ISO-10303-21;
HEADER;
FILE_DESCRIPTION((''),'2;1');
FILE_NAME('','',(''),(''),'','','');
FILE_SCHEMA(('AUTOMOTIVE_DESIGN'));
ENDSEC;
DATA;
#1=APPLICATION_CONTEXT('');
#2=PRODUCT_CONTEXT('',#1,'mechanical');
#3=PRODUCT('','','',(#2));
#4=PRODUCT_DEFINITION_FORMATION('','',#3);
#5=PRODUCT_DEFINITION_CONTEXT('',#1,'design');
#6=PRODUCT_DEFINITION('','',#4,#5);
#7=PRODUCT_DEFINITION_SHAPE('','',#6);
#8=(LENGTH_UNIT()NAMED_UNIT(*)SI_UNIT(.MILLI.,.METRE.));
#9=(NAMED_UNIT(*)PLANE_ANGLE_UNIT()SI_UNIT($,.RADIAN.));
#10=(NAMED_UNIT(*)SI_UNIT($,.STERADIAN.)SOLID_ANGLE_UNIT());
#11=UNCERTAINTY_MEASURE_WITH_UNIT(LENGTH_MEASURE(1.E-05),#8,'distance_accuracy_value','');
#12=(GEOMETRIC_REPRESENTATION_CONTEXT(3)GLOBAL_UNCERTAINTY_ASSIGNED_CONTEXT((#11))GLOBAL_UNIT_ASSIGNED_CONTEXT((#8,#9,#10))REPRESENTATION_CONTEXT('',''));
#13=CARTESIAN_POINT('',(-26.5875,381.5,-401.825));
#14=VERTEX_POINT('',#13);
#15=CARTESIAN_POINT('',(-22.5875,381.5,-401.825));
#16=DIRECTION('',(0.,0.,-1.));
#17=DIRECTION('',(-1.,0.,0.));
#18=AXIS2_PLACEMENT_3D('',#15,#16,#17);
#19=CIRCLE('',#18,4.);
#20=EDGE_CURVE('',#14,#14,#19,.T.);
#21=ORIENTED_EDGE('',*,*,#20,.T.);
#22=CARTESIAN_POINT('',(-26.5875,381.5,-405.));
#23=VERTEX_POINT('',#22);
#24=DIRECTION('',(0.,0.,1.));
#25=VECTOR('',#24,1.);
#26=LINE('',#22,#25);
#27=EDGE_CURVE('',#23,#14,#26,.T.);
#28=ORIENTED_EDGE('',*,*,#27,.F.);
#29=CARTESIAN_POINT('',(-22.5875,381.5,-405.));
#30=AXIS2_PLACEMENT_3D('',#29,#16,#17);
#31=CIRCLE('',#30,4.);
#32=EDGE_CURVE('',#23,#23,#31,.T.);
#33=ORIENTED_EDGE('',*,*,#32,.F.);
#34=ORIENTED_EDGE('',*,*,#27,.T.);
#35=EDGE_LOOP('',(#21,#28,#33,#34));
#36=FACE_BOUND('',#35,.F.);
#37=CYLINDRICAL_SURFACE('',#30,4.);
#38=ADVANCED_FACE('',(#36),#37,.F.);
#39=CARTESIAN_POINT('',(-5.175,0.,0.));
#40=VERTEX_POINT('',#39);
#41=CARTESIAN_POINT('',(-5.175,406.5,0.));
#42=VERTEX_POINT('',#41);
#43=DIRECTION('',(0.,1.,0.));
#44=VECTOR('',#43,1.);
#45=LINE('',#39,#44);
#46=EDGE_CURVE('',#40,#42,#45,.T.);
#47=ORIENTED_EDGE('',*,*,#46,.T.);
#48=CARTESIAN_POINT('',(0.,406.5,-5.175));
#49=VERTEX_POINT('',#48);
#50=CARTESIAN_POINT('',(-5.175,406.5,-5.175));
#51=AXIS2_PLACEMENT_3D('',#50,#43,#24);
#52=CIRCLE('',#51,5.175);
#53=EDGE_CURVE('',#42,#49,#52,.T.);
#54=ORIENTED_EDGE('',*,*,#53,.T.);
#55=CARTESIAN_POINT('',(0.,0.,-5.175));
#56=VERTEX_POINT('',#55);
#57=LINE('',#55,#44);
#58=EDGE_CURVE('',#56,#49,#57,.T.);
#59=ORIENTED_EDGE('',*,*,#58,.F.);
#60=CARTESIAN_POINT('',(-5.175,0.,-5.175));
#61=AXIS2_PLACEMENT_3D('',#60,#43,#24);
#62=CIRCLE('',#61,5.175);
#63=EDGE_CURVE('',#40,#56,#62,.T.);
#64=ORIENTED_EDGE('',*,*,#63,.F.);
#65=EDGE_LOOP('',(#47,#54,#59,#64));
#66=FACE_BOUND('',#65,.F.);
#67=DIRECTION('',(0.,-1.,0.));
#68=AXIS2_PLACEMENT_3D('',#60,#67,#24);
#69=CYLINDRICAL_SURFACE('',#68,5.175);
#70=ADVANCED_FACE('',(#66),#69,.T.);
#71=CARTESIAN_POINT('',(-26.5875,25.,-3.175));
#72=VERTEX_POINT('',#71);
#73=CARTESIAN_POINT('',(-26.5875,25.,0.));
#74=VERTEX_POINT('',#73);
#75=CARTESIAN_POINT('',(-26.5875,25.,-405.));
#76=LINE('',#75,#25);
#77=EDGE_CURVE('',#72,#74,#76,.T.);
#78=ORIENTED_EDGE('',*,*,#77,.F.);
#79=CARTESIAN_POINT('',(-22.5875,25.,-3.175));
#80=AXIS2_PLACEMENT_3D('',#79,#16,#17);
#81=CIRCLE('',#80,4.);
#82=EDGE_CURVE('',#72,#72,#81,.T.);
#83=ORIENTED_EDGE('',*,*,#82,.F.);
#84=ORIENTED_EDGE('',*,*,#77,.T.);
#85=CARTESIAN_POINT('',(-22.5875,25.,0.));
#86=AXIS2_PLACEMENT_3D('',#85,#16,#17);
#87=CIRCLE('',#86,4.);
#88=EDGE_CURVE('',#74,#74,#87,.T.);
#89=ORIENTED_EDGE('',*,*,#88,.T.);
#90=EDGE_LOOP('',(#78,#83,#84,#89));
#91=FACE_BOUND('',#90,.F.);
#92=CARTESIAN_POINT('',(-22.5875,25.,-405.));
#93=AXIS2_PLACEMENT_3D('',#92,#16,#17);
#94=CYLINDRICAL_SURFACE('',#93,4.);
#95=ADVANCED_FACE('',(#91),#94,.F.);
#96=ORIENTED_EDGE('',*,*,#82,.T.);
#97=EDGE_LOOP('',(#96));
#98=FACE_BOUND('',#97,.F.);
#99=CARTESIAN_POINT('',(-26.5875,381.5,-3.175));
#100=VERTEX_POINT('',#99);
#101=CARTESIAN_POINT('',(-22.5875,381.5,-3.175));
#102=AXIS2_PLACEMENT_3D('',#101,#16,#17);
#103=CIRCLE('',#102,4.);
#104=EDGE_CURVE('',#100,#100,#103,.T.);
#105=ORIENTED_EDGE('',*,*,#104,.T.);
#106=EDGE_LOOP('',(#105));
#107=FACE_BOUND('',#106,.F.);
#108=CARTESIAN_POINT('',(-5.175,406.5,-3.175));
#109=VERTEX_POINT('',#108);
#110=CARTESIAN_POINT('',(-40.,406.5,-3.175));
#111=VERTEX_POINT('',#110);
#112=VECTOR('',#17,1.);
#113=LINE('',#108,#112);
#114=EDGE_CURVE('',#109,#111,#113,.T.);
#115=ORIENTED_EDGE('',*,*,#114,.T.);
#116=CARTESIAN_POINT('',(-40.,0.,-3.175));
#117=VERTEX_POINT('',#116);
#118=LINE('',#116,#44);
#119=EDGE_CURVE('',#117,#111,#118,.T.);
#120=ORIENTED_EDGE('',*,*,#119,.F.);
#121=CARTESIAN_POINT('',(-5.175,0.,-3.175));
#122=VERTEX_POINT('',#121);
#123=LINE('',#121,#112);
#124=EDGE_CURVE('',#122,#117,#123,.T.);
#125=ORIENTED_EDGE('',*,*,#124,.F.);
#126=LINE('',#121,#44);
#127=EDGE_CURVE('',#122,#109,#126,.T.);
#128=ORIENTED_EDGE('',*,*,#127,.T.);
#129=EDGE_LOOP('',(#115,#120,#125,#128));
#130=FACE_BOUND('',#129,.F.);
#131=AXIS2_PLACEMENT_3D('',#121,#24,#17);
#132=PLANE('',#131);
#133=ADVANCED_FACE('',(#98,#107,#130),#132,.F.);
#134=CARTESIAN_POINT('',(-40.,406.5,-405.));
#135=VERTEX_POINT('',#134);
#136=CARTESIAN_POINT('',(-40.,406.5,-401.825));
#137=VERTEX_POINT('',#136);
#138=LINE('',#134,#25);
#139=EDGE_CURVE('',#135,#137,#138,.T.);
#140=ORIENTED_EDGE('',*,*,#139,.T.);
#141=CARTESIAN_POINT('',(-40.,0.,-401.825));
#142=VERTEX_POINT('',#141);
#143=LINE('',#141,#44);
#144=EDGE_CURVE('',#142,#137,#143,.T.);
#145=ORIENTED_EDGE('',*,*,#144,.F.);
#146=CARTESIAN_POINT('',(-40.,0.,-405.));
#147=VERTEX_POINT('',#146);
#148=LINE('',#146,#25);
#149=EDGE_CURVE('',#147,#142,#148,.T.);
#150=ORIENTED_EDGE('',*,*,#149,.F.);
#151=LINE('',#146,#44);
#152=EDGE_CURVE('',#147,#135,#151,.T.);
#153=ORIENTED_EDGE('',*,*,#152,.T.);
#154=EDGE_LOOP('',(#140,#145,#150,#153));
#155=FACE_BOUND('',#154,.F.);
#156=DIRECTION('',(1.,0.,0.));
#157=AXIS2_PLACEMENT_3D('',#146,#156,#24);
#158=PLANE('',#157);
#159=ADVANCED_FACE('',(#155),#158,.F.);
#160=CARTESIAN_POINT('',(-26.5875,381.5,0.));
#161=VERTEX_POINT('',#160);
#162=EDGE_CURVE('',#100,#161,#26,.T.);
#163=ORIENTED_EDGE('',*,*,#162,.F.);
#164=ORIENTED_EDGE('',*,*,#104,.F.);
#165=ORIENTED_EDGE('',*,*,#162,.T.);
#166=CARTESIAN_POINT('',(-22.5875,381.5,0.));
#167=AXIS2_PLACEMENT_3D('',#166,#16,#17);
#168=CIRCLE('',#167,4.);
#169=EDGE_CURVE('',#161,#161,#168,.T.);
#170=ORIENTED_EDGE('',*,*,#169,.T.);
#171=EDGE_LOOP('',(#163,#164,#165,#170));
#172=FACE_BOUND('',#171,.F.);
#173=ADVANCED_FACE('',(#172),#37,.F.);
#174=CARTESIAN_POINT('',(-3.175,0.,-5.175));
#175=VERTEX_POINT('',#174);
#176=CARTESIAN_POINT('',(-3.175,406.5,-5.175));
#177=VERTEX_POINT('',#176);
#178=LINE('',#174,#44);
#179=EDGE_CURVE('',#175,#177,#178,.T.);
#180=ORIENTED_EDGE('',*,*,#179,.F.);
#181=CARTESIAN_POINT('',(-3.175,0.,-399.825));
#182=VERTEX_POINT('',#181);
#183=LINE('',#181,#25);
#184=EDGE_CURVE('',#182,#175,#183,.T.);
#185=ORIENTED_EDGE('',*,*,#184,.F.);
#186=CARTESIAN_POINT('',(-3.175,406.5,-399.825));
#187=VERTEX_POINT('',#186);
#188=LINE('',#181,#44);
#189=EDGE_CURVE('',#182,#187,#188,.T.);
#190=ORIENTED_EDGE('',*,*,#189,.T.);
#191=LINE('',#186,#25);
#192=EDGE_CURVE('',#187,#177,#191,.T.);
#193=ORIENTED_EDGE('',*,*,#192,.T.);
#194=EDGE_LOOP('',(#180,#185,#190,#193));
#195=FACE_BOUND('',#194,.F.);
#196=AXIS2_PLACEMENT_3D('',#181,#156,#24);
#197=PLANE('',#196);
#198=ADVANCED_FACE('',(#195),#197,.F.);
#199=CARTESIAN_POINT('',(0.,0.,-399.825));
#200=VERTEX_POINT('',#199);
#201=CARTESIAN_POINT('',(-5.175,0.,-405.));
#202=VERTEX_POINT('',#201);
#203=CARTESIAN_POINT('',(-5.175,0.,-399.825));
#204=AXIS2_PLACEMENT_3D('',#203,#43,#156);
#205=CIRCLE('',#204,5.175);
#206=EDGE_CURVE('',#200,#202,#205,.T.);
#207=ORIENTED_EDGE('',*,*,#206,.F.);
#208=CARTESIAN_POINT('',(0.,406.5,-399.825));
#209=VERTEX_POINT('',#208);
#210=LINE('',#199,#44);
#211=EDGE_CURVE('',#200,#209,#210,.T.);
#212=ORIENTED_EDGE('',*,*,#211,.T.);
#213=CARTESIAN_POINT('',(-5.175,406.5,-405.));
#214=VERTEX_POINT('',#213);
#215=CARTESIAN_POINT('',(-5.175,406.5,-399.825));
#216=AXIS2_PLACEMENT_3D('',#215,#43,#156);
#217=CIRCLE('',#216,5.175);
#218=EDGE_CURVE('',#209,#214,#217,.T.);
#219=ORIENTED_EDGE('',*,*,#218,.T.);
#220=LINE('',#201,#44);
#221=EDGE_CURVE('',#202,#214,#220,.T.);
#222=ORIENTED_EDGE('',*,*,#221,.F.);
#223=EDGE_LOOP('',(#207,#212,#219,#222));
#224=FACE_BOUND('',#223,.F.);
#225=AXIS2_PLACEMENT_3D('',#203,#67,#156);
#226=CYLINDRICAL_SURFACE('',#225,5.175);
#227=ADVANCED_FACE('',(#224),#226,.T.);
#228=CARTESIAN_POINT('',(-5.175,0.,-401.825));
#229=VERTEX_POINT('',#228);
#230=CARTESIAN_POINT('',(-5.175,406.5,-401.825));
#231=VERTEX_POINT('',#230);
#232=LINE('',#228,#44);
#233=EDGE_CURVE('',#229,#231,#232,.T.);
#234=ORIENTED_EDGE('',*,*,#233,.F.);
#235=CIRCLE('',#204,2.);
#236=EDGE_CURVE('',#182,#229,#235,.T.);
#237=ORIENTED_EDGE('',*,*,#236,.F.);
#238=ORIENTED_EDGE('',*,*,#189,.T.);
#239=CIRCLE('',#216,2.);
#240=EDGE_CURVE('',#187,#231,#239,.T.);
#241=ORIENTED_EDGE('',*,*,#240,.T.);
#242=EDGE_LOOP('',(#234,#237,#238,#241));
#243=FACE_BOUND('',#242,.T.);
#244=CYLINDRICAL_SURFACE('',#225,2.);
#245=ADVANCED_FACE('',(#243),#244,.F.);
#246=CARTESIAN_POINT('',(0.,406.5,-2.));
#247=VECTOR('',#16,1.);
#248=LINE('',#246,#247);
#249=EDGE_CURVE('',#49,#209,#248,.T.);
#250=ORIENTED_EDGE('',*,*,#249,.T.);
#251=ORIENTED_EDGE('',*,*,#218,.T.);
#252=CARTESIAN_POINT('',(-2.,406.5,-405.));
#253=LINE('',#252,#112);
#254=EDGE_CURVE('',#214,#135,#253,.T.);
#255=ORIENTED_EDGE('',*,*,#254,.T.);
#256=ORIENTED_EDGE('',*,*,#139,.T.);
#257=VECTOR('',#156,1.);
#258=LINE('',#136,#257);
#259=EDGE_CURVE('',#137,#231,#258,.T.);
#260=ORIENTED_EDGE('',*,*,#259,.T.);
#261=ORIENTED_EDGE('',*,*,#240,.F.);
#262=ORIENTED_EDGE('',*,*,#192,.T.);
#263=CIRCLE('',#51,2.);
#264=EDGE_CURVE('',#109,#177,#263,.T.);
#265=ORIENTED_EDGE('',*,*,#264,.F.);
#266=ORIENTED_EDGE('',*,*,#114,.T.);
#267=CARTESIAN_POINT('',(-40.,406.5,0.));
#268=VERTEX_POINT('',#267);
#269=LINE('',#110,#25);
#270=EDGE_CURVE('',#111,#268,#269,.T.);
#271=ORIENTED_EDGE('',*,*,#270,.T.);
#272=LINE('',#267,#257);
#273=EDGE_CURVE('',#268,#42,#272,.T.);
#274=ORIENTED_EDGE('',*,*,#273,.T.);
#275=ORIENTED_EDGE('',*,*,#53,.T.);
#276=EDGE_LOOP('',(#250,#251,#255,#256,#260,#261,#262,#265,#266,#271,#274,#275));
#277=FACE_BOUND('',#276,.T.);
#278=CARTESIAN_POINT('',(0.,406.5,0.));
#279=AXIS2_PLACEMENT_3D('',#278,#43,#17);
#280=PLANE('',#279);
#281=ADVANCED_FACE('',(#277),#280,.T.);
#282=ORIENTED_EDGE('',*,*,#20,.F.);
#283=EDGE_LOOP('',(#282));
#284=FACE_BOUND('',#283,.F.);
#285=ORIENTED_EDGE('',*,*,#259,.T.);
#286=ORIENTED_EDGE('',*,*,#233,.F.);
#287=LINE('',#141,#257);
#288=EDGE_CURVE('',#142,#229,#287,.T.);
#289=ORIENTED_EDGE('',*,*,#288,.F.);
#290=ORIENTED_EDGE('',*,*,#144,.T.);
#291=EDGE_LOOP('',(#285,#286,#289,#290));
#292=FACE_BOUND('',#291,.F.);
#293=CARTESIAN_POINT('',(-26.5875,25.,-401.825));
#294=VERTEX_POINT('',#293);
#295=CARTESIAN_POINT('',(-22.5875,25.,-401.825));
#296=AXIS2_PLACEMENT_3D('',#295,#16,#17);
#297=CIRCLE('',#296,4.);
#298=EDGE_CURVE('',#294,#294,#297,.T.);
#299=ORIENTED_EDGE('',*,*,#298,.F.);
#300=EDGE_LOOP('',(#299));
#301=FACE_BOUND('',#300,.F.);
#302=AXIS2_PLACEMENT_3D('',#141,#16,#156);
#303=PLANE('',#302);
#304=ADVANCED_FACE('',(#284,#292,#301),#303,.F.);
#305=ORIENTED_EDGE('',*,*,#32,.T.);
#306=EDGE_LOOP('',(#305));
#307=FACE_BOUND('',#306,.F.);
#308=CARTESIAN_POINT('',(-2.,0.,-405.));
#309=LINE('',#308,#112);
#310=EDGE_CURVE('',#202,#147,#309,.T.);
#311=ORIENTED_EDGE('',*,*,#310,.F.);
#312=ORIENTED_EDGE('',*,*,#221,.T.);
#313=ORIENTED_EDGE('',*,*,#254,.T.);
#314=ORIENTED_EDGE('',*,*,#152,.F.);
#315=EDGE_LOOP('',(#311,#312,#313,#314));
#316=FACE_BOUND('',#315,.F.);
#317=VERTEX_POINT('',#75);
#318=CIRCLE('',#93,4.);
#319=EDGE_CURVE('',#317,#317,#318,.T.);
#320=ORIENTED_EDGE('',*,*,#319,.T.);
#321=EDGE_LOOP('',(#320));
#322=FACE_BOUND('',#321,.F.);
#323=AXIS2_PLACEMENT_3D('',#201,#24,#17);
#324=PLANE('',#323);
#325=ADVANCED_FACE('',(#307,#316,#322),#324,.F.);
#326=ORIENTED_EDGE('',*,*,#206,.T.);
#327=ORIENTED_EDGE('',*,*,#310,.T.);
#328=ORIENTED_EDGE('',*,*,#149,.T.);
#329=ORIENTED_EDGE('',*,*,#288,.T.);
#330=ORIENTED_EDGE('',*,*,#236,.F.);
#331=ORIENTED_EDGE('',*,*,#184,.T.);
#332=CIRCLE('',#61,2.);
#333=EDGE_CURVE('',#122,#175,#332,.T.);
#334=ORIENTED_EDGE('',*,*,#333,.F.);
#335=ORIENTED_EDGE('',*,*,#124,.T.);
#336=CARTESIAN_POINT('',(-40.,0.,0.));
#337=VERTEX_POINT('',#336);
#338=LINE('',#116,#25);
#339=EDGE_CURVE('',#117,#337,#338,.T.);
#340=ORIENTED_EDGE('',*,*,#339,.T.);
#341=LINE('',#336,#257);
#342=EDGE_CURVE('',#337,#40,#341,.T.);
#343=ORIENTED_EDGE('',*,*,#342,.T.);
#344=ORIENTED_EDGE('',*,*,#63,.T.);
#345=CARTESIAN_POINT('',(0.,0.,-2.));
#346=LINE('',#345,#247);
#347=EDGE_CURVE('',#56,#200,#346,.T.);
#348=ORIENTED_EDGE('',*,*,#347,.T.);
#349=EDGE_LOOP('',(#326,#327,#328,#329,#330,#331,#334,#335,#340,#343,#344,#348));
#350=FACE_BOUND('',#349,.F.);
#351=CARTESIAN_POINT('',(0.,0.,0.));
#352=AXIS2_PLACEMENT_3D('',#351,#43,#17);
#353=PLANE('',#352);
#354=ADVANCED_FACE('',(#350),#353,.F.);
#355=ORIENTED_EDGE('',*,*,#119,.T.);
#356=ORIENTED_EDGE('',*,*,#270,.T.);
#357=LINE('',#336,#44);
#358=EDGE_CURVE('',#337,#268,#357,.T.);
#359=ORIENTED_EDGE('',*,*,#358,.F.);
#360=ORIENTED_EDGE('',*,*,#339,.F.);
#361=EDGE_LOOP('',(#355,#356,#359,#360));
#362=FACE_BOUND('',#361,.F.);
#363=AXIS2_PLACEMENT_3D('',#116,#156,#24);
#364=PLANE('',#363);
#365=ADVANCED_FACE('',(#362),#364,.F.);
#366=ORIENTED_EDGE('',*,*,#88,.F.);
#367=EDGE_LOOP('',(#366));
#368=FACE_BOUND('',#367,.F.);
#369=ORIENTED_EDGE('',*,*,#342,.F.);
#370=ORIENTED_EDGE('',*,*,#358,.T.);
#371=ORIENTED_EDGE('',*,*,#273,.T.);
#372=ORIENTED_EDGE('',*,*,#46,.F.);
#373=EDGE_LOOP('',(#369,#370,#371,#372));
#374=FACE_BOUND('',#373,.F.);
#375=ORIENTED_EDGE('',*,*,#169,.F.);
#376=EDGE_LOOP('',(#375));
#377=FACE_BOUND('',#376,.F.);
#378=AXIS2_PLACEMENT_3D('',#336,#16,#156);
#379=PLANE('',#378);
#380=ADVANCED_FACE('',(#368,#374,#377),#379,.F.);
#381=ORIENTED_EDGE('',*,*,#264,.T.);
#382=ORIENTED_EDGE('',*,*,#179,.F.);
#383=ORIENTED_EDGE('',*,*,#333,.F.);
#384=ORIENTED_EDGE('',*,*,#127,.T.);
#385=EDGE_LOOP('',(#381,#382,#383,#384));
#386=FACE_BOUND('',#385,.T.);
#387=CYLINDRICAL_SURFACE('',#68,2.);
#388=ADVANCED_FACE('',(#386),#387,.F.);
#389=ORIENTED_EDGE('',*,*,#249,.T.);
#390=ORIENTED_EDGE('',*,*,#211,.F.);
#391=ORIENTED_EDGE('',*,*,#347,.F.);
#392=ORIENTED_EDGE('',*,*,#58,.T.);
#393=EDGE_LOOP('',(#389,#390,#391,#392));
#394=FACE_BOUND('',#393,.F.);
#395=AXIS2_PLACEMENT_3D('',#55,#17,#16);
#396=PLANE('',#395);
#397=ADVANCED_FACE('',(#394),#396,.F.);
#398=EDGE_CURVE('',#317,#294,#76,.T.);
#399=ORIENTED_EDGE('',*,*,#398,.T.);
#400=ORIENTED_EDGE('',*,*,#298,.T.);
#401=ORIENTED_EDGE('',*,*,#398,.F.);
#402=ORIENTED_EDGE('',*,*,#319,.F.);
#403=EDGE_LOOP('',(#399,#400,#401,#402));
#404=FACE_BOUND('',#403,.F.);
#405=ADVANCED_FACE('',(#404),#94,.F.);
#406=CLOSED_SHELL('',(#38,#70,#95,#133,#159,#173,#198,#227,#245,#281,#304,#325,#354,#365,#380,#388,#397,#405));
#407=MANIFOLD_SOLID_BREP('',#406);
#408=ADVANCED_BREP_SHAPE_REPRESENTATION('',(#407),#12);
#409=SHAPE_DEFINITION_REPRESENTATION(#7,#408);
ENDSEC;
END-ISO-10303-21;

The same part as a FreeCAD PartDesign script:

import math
import FreeCAD as App
import Part
import Sketcher

doc = App.newDocument("Part")
body = doc.addObject("PartDesign::Body", "Body")

sketch1 = body.newObject("Sketcher::SketchObject", "Sketch")
sketch1.AttachmentSupport = (doc.getObject("XZ_Plane"), [""])
sketch1.MapMode = "FlatFace"
sketch1.addGeometry(Part.ArcOfCircle(Part.Circle(App.Vector(-5.175, -5.175, 0), App.Vector(0, 0, 1), 5.175), math.radians(0), math.radians(90)), False)
sketch1.addGeometry(Part.LineSegment(App.Vector(0, -5.175, 0), App.Vector(0, -399.825, 0)), False)
sketch1.addGeometry(Part.ArcOfCircle(Part.Circle(App.Vector(-5.175, -399.825, 0), App.Vector(0, 0, 1), 5.175), math.radians(-90), math.radians(0)), False)
sketch1.addGeometry(Part.LineSegment(App.Vector(-5.175, -405, 0), App.Vector(-40, -405, 0)), False)
sketch1.addGeometry(Part.LineSegment(App.Vector(-40, -405, 0), App.Vector(-40, -401.825, 0)), False)
sketch1.addGeometry(Part.LineSegment(App.Vector(-40, -401.825, 0), App.Vector(-5.175, -401.825, 0)), False)
sketch1.addGeometry(Part.ArcOfCircle(Part.Circle(App.Vector(-5.175, -399.825, 0), App.Vector(0, 0, 1), 2), math.radians(-90), math.radians(0)), False)
sketch1.addGeometry(Part.LineSegment(App.Vector(-3.175, -399.825, 0), App.Vector(-3.175, -5.175, 0)), False)
sketch1.addGeometry(Part.ArcOfCircle(Part.Circle(App.Vector(-5.175, -5.175, 0), App.Vector(0, 0, 1), 2), math.radians(0), math.radians(90)), False)
sketch1.addGeometry(Part.LineSegment(App.Vector(-5.175, -3.175, 0), App.Vector(-40, -3.175, 0)), False)
sketch1.addGeometry(Part.LineSegment(App.Vector(-40, -3.175, 0), App.Vector(-40, 0, 0)), False)
sketch1.addGeometry(Part.LineSegment(App.Vector(-40, 0, 0), App.Vector(-5.175, 0, 0)), False)
sketch1.addConstraint(Sketcher.Constraint("Tangent", 0, 1, 1, 1))
sketch1.addConstraint(Sketcher.Constraint("Tangent", 1, 2, 2, 2))
sketch1.addConstraint(Sketcher.Constraint("Tangent", 2, 1, 3, 1))
sketch1.addConstraint(Sketcher.Constraint("Coincident", 3, 2, 4, 1))
sketch1.addConstraint(Sketcher.Constraint("Coincident", 4, 2, 5, 1))
sketch1.addConstraint(Sketcher.Constraint("Tangent", 5, 2, 6, 1))
sketch1.addConstraint(Sketcher.Constraint("Tangent", 6, 2, 7, 1))
sketch1.addConstraint(Sketcher.Constraint("Tangent", 7, 2, 8, 1))
sketch1.addConstraint(Sketcher.Constraint("Tangent", 8, 2, 9, 1))
sketch1.addConstraint(Sketcher.Constraint("Coincident", 9, 2, 10, 1))
sketch1.addConstraint(Sketcher.Constraint("Coincident", 10, 2, 11, 1))
sketch1.addConstraint(Sketcher.Constraint("Tangent", 11, 2, 0, 2))
sketch1.addConstraint(Sketcher.Constraint("Vertical", 1))
sketch1.addConstraint(Sketcher.Constraint("Horizontal", 3))
sketch1.addConstraint(Sketcher.Constraint("Vertical", 4))
sketch1.addConstraint(Sketcher.Constraint("Horizontal", 5))
sketch1.addConstraint(Sketcher.Constraint("Vertical", 7))
sketch1.addConstraint(Sketcher.Constraint("Horizontal", 9))
sketch1.addConstraint(Sketcher.Constraint("Vertical", 10))
sketch1.addConstraint(Sketcher.Constraint("Horizontal", 11))
sketch1.addConstraint(Sketcher.Constraint("Coincident", 6, 3, 2, 3))
sketch1.addConstraint(Sketcher.Constraint("Coincident", 8, 3, 0, 3))
sketch1.addConstraint(Sketcher.Constraint("Equal", 0, 2))
sketch1.addConstraint(Sketcher.Constraint("PointOnObject", 0, 1, -2))
sketch1.addConstraint(Sketcher.Constraint("PointOnObject", 10, 2, -1))
sketch1.addConstraint(Sketcher.Constraint("Vertical", 4, 2, 9, 2))
sketch1.addConstraint(Sketcher.Constraint("Radius", 6, 2.0))
sketch1.addConstraint(Sketcher.Constraint("DistanceY", 2, 1, -1, 1, 405.0))
sketch1.addConstraint(Sketcher.Constraint("DistanceX", 3, 2, -1, 1, 40.0))
sketch1.addConstraint(Sketcher.Constraint("DistanceY", 4, 1, 4, 2, 3.175))
pad1 = body.newObject("PartDesign::Pad", "Pad")
pad1.Profile = sketch1
pad1.Length = 406.5
pad1.Reversed = True

sketch2 = body.newObject("Sketcher::SketchObject", "Sketch001")
sketch2.AttachmentSupport = (doc.getObject("XY_Plane"), [""])
sketch2.MapMode = "FlatFace"
sketch2.AttachmentOffset = App.Placement(App.Vector(0, 0, -405), App.Rotation())
sketch2.addGeometry(Part.Circle(App.Vector(-22.5875, 25, 0), App.Vector(0, 0, 1), 4), False)
sketch2.addGeometry(Part.Circle(App.Vector(-22.5875, 381.5, 0), App.Vector(0, 0, 1), 4), False)
sketch2.addConstraint(Sketcher.Constraint("Equal", 0, 1))
sketch2.addConstraint(Sketcher.Constraint("Vertical", 0, 3, 1, 3))
sketch2.addConstraint(Sketcher.Constraint("Diameter", 0, 8.0))
sketch2.addConstraint(Sketcher.Constraint("DistanceY", -1, 1, 0, 3, 25.0))
sketch2.addConstraint(Sketcher.Constraint("DistanceY", -1, 1, 1, 3, 381.5))
sketch2.addConstraint(Sketcher.Constraint("DistanceX", 0, 3, -1, 1, 22.5875))
pocket1 = body.newObject("PartDesign::Pocket", "Pocket")
pocket1.Profile = sketch2
pocket1.Length = 451.5
pocket1.Reversed = True

doc.recompute()
